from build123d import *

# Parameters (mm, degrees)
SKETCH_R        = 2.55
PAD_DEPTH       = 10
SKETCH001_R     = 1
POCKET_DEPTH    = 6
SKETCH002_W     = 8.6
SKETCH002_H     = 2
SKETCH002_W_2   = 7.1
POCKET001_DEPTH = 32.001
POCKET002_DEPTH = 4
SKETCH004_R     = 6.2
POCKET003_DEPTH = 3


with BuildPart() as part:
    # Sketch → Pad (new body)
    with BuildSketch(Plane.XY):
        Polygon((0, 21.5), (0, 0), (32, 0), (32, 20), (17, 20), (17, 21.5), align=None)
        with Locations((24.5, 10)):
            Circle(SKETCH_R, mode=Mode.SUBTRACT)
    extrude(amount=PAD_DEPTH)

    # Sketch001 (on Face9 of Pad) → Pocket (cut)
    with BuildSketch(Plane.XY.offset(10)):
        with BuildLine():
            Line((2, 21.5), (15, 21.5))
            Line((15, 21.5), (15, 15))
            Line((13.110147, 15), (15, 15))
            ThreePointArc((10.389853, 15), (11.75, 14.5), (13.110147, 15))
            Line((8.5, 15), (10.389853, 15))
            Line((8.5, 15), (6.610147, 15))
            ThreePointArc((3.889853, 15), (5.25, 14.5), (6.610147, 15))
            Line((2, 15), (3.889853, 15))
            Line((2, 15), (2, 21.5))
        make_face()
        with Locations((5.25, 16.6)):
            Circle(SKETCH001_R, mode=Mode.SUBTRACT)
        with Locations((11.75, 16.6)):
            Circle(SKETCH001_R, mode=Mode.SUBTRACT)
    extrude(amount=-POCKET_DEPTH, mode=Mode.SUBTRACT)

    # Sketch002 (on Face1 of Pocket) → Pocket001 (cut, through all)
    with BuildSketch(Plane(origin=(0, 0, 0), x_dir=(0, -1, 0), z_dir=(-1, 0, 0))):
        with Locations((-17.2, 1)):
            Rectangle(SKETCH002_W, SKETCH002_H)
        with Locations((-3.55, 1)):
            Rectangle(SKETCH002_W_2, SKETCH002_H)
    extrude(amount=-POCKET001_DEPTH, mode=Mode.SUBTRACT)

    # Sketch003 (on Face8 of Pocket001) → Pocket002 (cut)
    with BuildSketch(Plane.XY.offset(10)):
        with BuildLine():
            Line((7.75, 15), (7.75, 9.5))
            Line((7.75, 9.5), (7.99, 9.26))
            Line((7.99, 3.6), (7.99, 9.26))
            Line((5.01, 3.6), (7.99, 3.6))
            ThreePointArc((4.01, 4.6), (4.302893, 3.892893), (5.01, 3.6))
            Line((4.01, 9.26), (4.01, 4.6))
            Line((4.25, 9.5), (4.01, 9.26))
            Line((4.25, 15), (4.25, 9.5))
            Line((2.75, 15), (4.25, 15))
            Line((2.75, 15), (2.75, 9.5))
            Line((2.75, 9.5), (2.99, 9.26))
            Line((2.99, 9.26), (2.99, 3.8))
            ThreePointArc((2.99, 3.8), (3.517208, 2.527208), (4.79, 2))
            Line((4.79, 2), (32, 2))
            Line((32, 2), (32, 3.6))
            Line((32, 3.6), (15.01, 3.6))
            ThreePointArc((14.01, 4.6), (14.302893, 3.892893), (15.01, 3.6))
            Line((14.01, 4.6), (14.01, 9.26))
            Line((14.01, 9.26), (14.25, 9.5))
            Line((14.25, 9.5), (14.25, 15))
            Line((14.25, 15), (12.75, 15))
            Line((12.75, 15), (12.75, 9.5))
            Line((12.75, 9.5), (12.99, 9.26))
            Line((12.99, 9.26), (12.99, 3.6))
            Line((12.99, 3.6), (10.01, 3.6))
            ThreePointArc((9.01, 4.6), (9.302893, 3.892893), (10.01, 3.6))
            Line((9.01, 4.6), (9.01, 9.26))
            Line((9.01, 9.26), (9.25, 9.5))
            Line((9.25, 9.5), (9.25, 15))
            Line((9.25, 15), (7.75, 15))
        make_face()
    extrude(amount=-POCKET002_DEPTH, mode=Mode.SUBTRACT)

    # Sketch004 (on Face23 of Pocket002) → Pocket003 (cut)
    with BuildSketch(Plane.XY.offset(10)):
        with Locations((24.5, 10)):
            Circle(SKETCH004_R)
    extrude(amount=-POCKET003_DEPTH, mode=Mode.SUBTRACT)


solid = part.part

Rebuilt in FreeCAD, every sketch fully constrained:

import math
import FreeCAD as App
import Part
import Sketcher
from FreeCAD import Vector
Q = App.Units.Quantity


def add_polygon(sketch, points):
    """Adds a closed chain of lines whose ends are joined by coincident constraints."""
    first, n = sketch.GeometryCount, len(points)
    for a, b in zip(points, points[1:] + points[:1]):
        sketch.addGeometry(Part.LineSegment(App.Vector(*a, 0), App.Vector(*b, 0)), False)
    for i in range(n):
        sketch.addConstraint(Sketcher.Constraint("Coincident", first + i, 2, first + (i + 1) % n, 1))

doc = App.newDocument("Part")
body = doc.addObject("PartDesign::Body", "Body")

sketch1 = doc.addObject("Sketcher::SketchObject", "Sketch")
body.addObject(sketch1)
sketch1.AttachmentSupport = (doc.XY_Plane, [""])
sketch1.MapMode = "FlatFace"
add_polygon(sketch1, [(0, 21.5), (0, 0), (32, 0), (32, 20), (17, 20), (17, 21.5)])
sketch1.addGeometry(Part.Circle(Vector(24.5, 10, 0), Vector(0, 0, 1), 2.5), False)
sketch1.addConstraint([
    Sketcher.Constraint("Vertical", 0),
    Sketcher.Constraint("Horizontal", 1),
    Sketcher.Constraint("Vertical", 2),
    Sketcher.Constraint("Horizontal", 3),
    Sketcher.Constraint("Vertical", 4),
    Sketcher.Constraint("Horizontal", 5),
    Sketcher.Constraint("Coincident", 0, 2, -1, 1),
    Sketcher.Constraint("Diameter", 6, Q("5.1 mm")),
    Sketcher.Constraint("DistanceX", 1, 1, 1, 2, Q("32 mm")),
    Sketcher.Constraint("DistanceX", 3, 2, 3, 1, Q("15 mm")),
    Sketcher.Constraint("DistanceY", 2, 1, 2, 2, Q("20 mm")),
    Sketcher.Constraint("DistanceY", 0, 2, 0, 1, Q("21.5 mm")),
    Sketcher.Constraint("DistanceY", -1, 1, 6, 3, Q("10 mm")),
    Sketcher.Constraint("DistanceX", -1, 1, 6, 3, Q("24.5 mm")),
])
pad1 = doc.addObject("PartDesign::Pad", "Pad")
body.addObject(pad1)
pad1.Profile = sketch1
pad1.Length = 10

sketch2 = doc.addObject("Sketcher::SketchObject", "Sketch001")
body.addObject(sketch2)
sketch2.AttachmentSupport = (doc.XY_Plane, [""])
sketch2.MapMode = "FlatFace"
sketch2.AttachmentOffset = App.Placement(Vector(0, 0, 10), App.Rotation())
sketch2.addGeometry([
    Part.LineSegment(Vector(15, 21.5, 0), Vector(2, 21.5, 0)),
    Part.LineSegment(Vector(2, 21.5, 0), Vector(2, 15, 0)),
    Part.LineSegment(Vector(2, 15, 0), Vector(3.9, 15, 0)),
    Part.ArcOfCircle(Part.Circle(Vector(5.2, 16.6, 0), Vector(0, 0, 1), 2.1), math.radians(-130), math.radians(-50)),
    Part.LineSegment(Vector(6.6, 15, 0), Vector(10.4, 15, 0)),
    Part.ArcOfCircle(Part.Circle(Vector(11.8, 16.6, 0), Vector(0, 0, 1), 2.1), math.radians(-130), math.radians(-50)),
    Part.LineSegment(Vector(13.1, 15, 0), Vector(15, 15, 0)),
    Part.LineSegment(Vector(15, 15, 0), Vector(15, 21.5, 0)),
    Part.Circle(Vector(11.8, 16.6, 0), Vector(0, 0, 1), 1),
    Part.Circle(Vector(5.2, 16.6, 0), Vector(0, 0, 1), 1),
], False)
sketch2.addConstraint([
    Sketcher.Constraint("Coincident", 0, 2, 1, 1),
    Sketcher.Constraint("Coincident", 1, 2, 2, 1),
    Sketcher.Constraint("Coincident", 2, 2, 3, 1),
    Sketcher.Constraint("Coincident", 3, 2, 4, 1),
    Sketcher.Constraint("Coincident", 4, 2, 5, 1),
    Sketcher.Constraint("Coincident", 5, 2, 6, 1),
    Sketcher.Constraint("Coincident", 6, 2, 7, 1),
    Sketcher.Constraint("Coincident", 7, 2, 0, 1),
    Sketcher.Constraint("Horizontal", 0),
    Sketcher.Constraint("Vertical", 1),
    Sketcher.Constraint("Horizontal", 2),
    Sketcher.Constraint("Horizontal", 4),
    Sketcher.Constraint("Horizontal", 6),
    Sketcher.Constraint("Vertical", 7),
    Sketcher.Constraint("Coincident", 8, 3, 5, 3),
    Sketcher.Constraint("Coincident", 9, 3, 3, 3),
    Sketcher.Constraint("Equal", 3, 5),
    Sketcher.Constraint("Equal", 8, 9),
    Sketcher.Constraint("Horizontal", 3, 3, 5, 3),
    Sketcher.Constraint("Horizontal", 2, 2, 3, 2),
    Sketcher.Constraint("Horizontal", 4, 2, 5, 2),
    Sketcher.Constraint("Equal", 2, 6),
    Sketcher.Constraint("Diameter", 8, Q("2 mm")),
    Sketcher.Constraint("Radius", 3, Q("2.1 mm")),
    Sketcher.Constraint("DistanceX", 0, 2, 0, 1, Q("13 mm")),
    Sketcher.Constraint("DistanceY", 1, 2, 1, 1, Q("6.5 mm")),
    Sketcher.Constraint("DistanceX", -1, 1, 0, 2, Q("2 mm")),
    Sketcher.Constraint("DistanceY", -1, 1, 1, 2, Q("15 mm")),
    Sketcher.Constraint("DistanceY", -1, 1, 3, 3, Q("16.6 mm")),
    Sketcher.Constraint("DistanceX", 3, 3, 5, 3, Q("6.5 mm")),
])
pocket1 = doc.addObject("PartDesign::Pocket", "Pocket")
body.addObject(pocket1)
pocket1.Profile = sketch2
pocket1.Length = 6

sketch3 = doc.addObject("Sketcher::SketchObject", "Sketch002")
body.addObject(sketch3)
sketch3.AttachmentSupport = (doc.YZ_Plane, [""])
sketch3.MapMode = "FlatFace"
add_polygon(sketch3, [(21.5, 2), (21.5, 0), (12.9, 0), (12.9, 2)])
add_polygon(sketch3, [(7.1, 2), (7.1, 0), (0, 0), (0, 2)])
sketch3.addConstraint([
    Sketcher.Constraint("Vertical", 0),
    Sketcher.Constraint("Horizontal", 1),
    Sketcher.Constraint("Vertical", 2),
    Sketcher.Constraint("Horizontal", 3),
    Sketcher.Constraint("Vertical", 4),
    Sketcher.Constraint("Horizontal", 5),
    Sketcher.Constraint("Vertical", 6),
    Sketcher.Constraint("Horizontal", 7),
    Sketcher.Constraint("Coincident", 5, 2, -1, 1),
    Sketcher.Constraint("PointOnObject", 0, 2, -1),
    Sketcher.Constraint("Horizontal", 3, 2, 6, 2),
    Sketcher.Constraint("DistanceY", 0, 2, 0, 1, Q("2 mm")),
    Sketcher.Constraint("DistanceX", 1, 2, 1, 1, Q("8.6 mm")),
    Sketcher.Constraint("DistanceX", 5, 2, 5, 1, Q("7.1 mm")),
    Sketcher.Constraint("DistanceX", -1, 1, 0, 2, Q("21.5 mm")),
])
pocket2 = doc.addObject("PartDesign::Pocket", "Pocket001")
body.addObject(pocket2)
pocket2.Profile = sketch3
pocket2.Type = "ThroughAll"
pocket2.Reversed = True

sketch4 = doc.addObject("Sketcher::SketchObject", "Sketch003")
body.addObject(sketch4)
sketch4.AttachmentSupport = (doc.XY_Plane, [""])
sketch4.MapMode = "FlatFace"
sketch4.AttachmentOffset = App.Placement(Vector(0, 0, 10), App.Rotation())
sketch4.addGeometry([
    Part.LineSegment(Vector(7.75, 15, 0), Vector(7.75, 9.5, 0)),
    Part.LineSegment(Vector(7.75, 9.5, 0), Vector(7.99, 9.26, 0)),
    Part.LineSegment(Vector(7.99, 9.26, 0), Vector(7.99, 3.6, 0)),
    Part.LineSegment(Vector(7.99, 3.6, 0), Vector(5.01, 3.6, 0)),
    Part.ArcOfCircle(Part.Circle(Vector(5.01, 4.6, 0), Vector(0, 0, 1), 1), math.radians(180), math.radians(270)),
    Part.LineSegment(Vector(4.01, 4.6, 0), Vector(4.01, 9.26, 0)),
    Part.LineSegment(Vector(4.01, 9.26, 0), Vector(4.25, 9.5, 0)),
    Part.LineSegment(Vector(4.25, 9.5, 0), Vector(4.25, 15, 0)),
    Part.LineSegment(Vector(4.25, 15, 0), Vector(2.75, 15, 0)),
    Part.LineSegment(Vector(2.75, 15, 0), Vector(2.75, 9.5, 0)),
    Part.LineSegment(Vector(2.75, 9.5, 0), Vector(2.99, 9.26, 0)),
    Part.LineSegment(Vector(2.99, 9.26, 0), Vector(2.99, 3.8, 0)),
    Part.ArcOfCircle(Part.Circle(Vector(4.79, 3.8, 0), Vector(0, 0, 1), 1.8), math.radians(-180), math.radians(-90)),
    Part.LineSegment(Vector(4.79, 2, 0), Vector(32, 2, 0)),
    Part.LineSegment(Vector(32, 2, 0), Vector(32, 3.6, 0)),
    Part.LineSegment(Vector(32, 3.6, 0), Vector(15.01, 3.6, 0)),
    Part.ArcOfCircle(Part.Circle(Vector(15.01, 4.6, 0), Vector(0, 0, 1), 1), math.radians(180), math.radians(270)),
    Part.LineSegment(Vector(14.01, 4.6, 0), Vector(14.01, 9.26, 0)),
    Part.LineSegment(Vector(14.01, 9.26, 0), Vector(14.25, 9.5, 0)),
    Part.LineSegment(Vector(14.25, 9.5, 0), Vector(14.25, 15, 0)),
    Part.LineSegment(Vector(14.25, 15, 0), Vector(12.75, 15, 0)),
    Part.LineSegment(Vector(12.75, 15, 0), Vector(12.75, 9.5, 0)),
    Part.LineSegment(Vector(12.75, 9.5, 0), Vector(12.99, 9.26, 0)),
    Part.LineSegment(Vector(12.99, 9.26, 0), Vector(12.99, 3.6, 0)),
    Part.LineSegment(Vector(12.99, 3.6, 0), Vector(10.01, 3.6, 0)),
    Part.ArcOfCircle(Part.Circle(Vector(10.01, 4.6, 0), Vector(0, 0, 1), 1), math.radians(180), math.radians(270)),
    Part.LineSegment(Vector(9.01, 4.6, 0), Vector(9.01, 9.26, 0)),
    Part.LineSegment(Vector(9.01, 9.26, 0), Vector(9.25, 9.5, 0)),
    Part.LineSegment(Vector(9.25, 9.5, 0), Vector(9.25, 15, 0)),
    Part.LineSegment(Vector(9.25, 15, 0), Vector(7.75, 15, 0)),
], False)
sketch4.addConstraint([
    Sketcher.Constraint("Coincident", 0, 2, 1, 1),
    Sketcher.Constraint("Coincident", 1, 2, 2, 1),
    Sketcher.Constraint("Coincident", 2, 2, 3, 1),
    Sketcher.Constraint("Tangent", 3, 2, 4, 2),
    Sketcher.Constraint("Tangent", 4, 1, 5, 1),
    Sketcher.Constraint("Coincident", 5, 2, 6, 1),
    Sketcher.Constraint("Coincident", 6, 2, 7, 1),
    Sketcher.Constraint("Coincident", 7, 2, 8, 1),
    Sketcher.Constraint("Coincident", 8, 2, 9, 1),
    Sketcher.Constraint("Coincident", 9, 2, 10, 1),
    Sketcher.Constraint("Coincident", 10, 2, 11, 1),
    Sketcher.Constraint("Tangent", 11, 2, 12, 1),
    Sketcher.Constraint("Tangent", 12, 2, 13, 1),
    Sketcher.Constraint("Coincident", 13, 2, 14, 1),
    Sketcher.Constraint("Coincident", 14, 2, 15, 1),
    Sketcher.Constraint("Tangent", 15, 2, 16, 2),
    Sketcher.Constraint("Tangent", 16, 1, 17, 1),
    Sketcher.Constraint("Coincident", 17, 2, 18, 1),
    Sketcher.Constraint("Coincident", 18, 2, 19, 1),
    Sketcher.Constraint("Coincident", 19, 2, 20, 1),
    Sketcher.Constraint("Coincident", 20, 2, 21, 1),
    Sketcher.Constraint("Coincident", 21, 2, 22, 1),
    Sketcher.Constraint("Coincident", 22, 2, 23, 1),
    Sketcher.Constraint("Coincident", 23, 2, 24, 1),
    Sketcher.Constraint("Tangent", 24, 2, 25, 2),
    Sketcher.Constraint("Tangent", 25, 1, 26, 1),
    Sketcher.Constraint("Coincident", 26, 2, 27, 1),
    Sketcher.Constraint("Coincident", 27, 2, 28, 1),
    Sketcher.Constraint("Coincident", 28, 2, 29, 1),
    Sketcher.Constraint("Coincident", 29, 2, 0, 1),
    Sketcher.Constraint("Vertical", 0),
    Sketcher.Constraint("Vertical", 2),
    Sketcher.Constraint("Horizontal", 3),
    Sketcher.Constraint("Vertical", 5),
    Sketcher.Constraint("Vertical", 7),
    Sketcher.Constraint("Horizontal", 8),
    Sketcher.Constraint("Vertical", 9),
    Sketcher.Constraint("Vertical", 11),
    Sketcher.Constraint("Horizontal", 13),
    Sketcher.Constraint("Vertical", 14),
    Sketcher.Constraint("Horizontal", 15),
    Sketcher.Constraint("Vertical", 17),
    Sketcher.Constraint("Vertical", 19),
    Sketcher.Constraint("Horizontal", 20),
    Sketcher.Constraint("Vertical", 21),
    Sketcher.Constraint("Vertical", 23),
    Sketcher.Constraint("Horizontal", 24),
    Sketcher.Constraint("Vertical", 26),
    Sketcher.Constraint("Vertical", 28),
    Sketcher.Constraint("Horizontal", 29),
    Sketcher.Constraint("Equal", 4, 16),
    Sketcher.Constraint("Equal", 16, 25),
    Sketcher.Constraint("Perpendicular", 1, 6),
    Sketcher.Constraint("Perpendicular", 6, 10),
    Sketcher.Constraint("Perpendicular", 10, 18),
    Sketcher.Constraint("Perpendicular", 18, 22),
    Sketcher.Constraint("Perpendicular", 22, 27),
    Sketcher.Constraint("Horizontal", 4, 3, 16, 3),
    Sketcher.Constraint("Horizontal", 16, 3, 25, 3),
    Sketcher.Constraint("Horizontal", 1, 2, 5, 2),
    Sketcher.Constraint("Horizontal", 0, 2, 6, 2),
    Sketcher.Constraint("Horizontal", 6, 2, 9, 2),
    Sketcher.Constraint("Horizontal", 5, 2, 10, 2),
    Sketcher.Constraint("Horizontal", 10, 2, 17, 2),
    Sketcher.Constraint("Horizontal", 9, 2, 18, 2),
    Sketcher.Constraint("Horizontal", 8, 2, 19, 2),
    Sketcher.Constraint("Horizontal", 18, 2, 21, 2),
    Sketcher.Constraint("Horizontal", 17, 2, 22, 2),
    Sketcher.Constraint("Horizontal", 22, 2, 26, 2),
    Sketcher.Constraint("Horizontal", 21, 2, 27, 2),
    Sketcher.Constraint("Horizontal", 20, 2, 28, 2),
    Sketcher.Constraint("Equal", 8, 20),
    Sketcher.Constraint("Equal", 3, 24),
    Sketcher.Constraint("Equal", 20, 29),
    Sketcher.Constraint("Equal", 1, 6),
    Sketcher.Constraint("Radius", 4, Q("0.999999 mm")),
    Sketcher.Constraint("Radius", 12, Q("1.800001 mm")),
    Sketcher.Constraint("DistanceX", 8, 2, 8, 1, Q("1.5 mm")),
    Sketcher.Constraint("DistanceY", 0, 2, 0, 1, Q("5.5 mm")),
    Sketcher.Constraint("DistanceY", 14, 1, 14, 2, Q("1.6 mm")),
    Sketcher.Constraint("DistanceY", -1, 1, 7, 2, Q("15 mm")),
    Sketcher.Constraint("DistanceY", -1, 1, 12, 2, Q("2 mm")),
    Sketcher.Constraint("DistanceX", -1, 1, 13, 2, Q("32 mm")),
    Sketcher.Constraint("DistanceX", 4, 3, 16, 3, Q("10 mm")),
    Sketcher.Constraint("DistanceX", 3, 2, 3, 1, Q("2.98 mm")),
    Sketcher.Constraint("DistanceX", 13, 1, 13, 2, Q("27.21 mm")),
])
pocket3 = doc.addObject("PartDesign::Pocket", "Pocket002")
body.addObject(pocket3)
pocket3.Profile = sketch4
pocket3.Length = 4

sketch5 = doc.addObject("Sketcher::SketchObject", "Sketch004")
body.addObject(sketch5)
sketch5.AttachmentSupport = (doc.XY_Plane, [""])
sketch5.MapMode = "FlatFace"
sketch5.AttachmentOffset = App.Placement(Vector(0, 0, 10), App.Rotation())
sketch5.addGeometry(Part.Circle(Vector(24, 10, 0), Vector(0, 0, 1), 6), False)
sketch5.addConstraint([
    Sketcher.Constraint("Diameter", 0, Q("12.4 mm")),
    Sketcher.Constraint("DistanceY", -1, 1, 0, 3, Q("10 mm")),
    Sketcher.Constraint("DistanceX", -1, 1, 0, 3, Q("24.5 mm")),
])
pocket4 = doc.addObject("PartDesign::Pocket", "Pocket003")
body.addObject(pocket4)
pocket4.Profile = sketch5
pocket4.Length = 3

doc.recompute()
